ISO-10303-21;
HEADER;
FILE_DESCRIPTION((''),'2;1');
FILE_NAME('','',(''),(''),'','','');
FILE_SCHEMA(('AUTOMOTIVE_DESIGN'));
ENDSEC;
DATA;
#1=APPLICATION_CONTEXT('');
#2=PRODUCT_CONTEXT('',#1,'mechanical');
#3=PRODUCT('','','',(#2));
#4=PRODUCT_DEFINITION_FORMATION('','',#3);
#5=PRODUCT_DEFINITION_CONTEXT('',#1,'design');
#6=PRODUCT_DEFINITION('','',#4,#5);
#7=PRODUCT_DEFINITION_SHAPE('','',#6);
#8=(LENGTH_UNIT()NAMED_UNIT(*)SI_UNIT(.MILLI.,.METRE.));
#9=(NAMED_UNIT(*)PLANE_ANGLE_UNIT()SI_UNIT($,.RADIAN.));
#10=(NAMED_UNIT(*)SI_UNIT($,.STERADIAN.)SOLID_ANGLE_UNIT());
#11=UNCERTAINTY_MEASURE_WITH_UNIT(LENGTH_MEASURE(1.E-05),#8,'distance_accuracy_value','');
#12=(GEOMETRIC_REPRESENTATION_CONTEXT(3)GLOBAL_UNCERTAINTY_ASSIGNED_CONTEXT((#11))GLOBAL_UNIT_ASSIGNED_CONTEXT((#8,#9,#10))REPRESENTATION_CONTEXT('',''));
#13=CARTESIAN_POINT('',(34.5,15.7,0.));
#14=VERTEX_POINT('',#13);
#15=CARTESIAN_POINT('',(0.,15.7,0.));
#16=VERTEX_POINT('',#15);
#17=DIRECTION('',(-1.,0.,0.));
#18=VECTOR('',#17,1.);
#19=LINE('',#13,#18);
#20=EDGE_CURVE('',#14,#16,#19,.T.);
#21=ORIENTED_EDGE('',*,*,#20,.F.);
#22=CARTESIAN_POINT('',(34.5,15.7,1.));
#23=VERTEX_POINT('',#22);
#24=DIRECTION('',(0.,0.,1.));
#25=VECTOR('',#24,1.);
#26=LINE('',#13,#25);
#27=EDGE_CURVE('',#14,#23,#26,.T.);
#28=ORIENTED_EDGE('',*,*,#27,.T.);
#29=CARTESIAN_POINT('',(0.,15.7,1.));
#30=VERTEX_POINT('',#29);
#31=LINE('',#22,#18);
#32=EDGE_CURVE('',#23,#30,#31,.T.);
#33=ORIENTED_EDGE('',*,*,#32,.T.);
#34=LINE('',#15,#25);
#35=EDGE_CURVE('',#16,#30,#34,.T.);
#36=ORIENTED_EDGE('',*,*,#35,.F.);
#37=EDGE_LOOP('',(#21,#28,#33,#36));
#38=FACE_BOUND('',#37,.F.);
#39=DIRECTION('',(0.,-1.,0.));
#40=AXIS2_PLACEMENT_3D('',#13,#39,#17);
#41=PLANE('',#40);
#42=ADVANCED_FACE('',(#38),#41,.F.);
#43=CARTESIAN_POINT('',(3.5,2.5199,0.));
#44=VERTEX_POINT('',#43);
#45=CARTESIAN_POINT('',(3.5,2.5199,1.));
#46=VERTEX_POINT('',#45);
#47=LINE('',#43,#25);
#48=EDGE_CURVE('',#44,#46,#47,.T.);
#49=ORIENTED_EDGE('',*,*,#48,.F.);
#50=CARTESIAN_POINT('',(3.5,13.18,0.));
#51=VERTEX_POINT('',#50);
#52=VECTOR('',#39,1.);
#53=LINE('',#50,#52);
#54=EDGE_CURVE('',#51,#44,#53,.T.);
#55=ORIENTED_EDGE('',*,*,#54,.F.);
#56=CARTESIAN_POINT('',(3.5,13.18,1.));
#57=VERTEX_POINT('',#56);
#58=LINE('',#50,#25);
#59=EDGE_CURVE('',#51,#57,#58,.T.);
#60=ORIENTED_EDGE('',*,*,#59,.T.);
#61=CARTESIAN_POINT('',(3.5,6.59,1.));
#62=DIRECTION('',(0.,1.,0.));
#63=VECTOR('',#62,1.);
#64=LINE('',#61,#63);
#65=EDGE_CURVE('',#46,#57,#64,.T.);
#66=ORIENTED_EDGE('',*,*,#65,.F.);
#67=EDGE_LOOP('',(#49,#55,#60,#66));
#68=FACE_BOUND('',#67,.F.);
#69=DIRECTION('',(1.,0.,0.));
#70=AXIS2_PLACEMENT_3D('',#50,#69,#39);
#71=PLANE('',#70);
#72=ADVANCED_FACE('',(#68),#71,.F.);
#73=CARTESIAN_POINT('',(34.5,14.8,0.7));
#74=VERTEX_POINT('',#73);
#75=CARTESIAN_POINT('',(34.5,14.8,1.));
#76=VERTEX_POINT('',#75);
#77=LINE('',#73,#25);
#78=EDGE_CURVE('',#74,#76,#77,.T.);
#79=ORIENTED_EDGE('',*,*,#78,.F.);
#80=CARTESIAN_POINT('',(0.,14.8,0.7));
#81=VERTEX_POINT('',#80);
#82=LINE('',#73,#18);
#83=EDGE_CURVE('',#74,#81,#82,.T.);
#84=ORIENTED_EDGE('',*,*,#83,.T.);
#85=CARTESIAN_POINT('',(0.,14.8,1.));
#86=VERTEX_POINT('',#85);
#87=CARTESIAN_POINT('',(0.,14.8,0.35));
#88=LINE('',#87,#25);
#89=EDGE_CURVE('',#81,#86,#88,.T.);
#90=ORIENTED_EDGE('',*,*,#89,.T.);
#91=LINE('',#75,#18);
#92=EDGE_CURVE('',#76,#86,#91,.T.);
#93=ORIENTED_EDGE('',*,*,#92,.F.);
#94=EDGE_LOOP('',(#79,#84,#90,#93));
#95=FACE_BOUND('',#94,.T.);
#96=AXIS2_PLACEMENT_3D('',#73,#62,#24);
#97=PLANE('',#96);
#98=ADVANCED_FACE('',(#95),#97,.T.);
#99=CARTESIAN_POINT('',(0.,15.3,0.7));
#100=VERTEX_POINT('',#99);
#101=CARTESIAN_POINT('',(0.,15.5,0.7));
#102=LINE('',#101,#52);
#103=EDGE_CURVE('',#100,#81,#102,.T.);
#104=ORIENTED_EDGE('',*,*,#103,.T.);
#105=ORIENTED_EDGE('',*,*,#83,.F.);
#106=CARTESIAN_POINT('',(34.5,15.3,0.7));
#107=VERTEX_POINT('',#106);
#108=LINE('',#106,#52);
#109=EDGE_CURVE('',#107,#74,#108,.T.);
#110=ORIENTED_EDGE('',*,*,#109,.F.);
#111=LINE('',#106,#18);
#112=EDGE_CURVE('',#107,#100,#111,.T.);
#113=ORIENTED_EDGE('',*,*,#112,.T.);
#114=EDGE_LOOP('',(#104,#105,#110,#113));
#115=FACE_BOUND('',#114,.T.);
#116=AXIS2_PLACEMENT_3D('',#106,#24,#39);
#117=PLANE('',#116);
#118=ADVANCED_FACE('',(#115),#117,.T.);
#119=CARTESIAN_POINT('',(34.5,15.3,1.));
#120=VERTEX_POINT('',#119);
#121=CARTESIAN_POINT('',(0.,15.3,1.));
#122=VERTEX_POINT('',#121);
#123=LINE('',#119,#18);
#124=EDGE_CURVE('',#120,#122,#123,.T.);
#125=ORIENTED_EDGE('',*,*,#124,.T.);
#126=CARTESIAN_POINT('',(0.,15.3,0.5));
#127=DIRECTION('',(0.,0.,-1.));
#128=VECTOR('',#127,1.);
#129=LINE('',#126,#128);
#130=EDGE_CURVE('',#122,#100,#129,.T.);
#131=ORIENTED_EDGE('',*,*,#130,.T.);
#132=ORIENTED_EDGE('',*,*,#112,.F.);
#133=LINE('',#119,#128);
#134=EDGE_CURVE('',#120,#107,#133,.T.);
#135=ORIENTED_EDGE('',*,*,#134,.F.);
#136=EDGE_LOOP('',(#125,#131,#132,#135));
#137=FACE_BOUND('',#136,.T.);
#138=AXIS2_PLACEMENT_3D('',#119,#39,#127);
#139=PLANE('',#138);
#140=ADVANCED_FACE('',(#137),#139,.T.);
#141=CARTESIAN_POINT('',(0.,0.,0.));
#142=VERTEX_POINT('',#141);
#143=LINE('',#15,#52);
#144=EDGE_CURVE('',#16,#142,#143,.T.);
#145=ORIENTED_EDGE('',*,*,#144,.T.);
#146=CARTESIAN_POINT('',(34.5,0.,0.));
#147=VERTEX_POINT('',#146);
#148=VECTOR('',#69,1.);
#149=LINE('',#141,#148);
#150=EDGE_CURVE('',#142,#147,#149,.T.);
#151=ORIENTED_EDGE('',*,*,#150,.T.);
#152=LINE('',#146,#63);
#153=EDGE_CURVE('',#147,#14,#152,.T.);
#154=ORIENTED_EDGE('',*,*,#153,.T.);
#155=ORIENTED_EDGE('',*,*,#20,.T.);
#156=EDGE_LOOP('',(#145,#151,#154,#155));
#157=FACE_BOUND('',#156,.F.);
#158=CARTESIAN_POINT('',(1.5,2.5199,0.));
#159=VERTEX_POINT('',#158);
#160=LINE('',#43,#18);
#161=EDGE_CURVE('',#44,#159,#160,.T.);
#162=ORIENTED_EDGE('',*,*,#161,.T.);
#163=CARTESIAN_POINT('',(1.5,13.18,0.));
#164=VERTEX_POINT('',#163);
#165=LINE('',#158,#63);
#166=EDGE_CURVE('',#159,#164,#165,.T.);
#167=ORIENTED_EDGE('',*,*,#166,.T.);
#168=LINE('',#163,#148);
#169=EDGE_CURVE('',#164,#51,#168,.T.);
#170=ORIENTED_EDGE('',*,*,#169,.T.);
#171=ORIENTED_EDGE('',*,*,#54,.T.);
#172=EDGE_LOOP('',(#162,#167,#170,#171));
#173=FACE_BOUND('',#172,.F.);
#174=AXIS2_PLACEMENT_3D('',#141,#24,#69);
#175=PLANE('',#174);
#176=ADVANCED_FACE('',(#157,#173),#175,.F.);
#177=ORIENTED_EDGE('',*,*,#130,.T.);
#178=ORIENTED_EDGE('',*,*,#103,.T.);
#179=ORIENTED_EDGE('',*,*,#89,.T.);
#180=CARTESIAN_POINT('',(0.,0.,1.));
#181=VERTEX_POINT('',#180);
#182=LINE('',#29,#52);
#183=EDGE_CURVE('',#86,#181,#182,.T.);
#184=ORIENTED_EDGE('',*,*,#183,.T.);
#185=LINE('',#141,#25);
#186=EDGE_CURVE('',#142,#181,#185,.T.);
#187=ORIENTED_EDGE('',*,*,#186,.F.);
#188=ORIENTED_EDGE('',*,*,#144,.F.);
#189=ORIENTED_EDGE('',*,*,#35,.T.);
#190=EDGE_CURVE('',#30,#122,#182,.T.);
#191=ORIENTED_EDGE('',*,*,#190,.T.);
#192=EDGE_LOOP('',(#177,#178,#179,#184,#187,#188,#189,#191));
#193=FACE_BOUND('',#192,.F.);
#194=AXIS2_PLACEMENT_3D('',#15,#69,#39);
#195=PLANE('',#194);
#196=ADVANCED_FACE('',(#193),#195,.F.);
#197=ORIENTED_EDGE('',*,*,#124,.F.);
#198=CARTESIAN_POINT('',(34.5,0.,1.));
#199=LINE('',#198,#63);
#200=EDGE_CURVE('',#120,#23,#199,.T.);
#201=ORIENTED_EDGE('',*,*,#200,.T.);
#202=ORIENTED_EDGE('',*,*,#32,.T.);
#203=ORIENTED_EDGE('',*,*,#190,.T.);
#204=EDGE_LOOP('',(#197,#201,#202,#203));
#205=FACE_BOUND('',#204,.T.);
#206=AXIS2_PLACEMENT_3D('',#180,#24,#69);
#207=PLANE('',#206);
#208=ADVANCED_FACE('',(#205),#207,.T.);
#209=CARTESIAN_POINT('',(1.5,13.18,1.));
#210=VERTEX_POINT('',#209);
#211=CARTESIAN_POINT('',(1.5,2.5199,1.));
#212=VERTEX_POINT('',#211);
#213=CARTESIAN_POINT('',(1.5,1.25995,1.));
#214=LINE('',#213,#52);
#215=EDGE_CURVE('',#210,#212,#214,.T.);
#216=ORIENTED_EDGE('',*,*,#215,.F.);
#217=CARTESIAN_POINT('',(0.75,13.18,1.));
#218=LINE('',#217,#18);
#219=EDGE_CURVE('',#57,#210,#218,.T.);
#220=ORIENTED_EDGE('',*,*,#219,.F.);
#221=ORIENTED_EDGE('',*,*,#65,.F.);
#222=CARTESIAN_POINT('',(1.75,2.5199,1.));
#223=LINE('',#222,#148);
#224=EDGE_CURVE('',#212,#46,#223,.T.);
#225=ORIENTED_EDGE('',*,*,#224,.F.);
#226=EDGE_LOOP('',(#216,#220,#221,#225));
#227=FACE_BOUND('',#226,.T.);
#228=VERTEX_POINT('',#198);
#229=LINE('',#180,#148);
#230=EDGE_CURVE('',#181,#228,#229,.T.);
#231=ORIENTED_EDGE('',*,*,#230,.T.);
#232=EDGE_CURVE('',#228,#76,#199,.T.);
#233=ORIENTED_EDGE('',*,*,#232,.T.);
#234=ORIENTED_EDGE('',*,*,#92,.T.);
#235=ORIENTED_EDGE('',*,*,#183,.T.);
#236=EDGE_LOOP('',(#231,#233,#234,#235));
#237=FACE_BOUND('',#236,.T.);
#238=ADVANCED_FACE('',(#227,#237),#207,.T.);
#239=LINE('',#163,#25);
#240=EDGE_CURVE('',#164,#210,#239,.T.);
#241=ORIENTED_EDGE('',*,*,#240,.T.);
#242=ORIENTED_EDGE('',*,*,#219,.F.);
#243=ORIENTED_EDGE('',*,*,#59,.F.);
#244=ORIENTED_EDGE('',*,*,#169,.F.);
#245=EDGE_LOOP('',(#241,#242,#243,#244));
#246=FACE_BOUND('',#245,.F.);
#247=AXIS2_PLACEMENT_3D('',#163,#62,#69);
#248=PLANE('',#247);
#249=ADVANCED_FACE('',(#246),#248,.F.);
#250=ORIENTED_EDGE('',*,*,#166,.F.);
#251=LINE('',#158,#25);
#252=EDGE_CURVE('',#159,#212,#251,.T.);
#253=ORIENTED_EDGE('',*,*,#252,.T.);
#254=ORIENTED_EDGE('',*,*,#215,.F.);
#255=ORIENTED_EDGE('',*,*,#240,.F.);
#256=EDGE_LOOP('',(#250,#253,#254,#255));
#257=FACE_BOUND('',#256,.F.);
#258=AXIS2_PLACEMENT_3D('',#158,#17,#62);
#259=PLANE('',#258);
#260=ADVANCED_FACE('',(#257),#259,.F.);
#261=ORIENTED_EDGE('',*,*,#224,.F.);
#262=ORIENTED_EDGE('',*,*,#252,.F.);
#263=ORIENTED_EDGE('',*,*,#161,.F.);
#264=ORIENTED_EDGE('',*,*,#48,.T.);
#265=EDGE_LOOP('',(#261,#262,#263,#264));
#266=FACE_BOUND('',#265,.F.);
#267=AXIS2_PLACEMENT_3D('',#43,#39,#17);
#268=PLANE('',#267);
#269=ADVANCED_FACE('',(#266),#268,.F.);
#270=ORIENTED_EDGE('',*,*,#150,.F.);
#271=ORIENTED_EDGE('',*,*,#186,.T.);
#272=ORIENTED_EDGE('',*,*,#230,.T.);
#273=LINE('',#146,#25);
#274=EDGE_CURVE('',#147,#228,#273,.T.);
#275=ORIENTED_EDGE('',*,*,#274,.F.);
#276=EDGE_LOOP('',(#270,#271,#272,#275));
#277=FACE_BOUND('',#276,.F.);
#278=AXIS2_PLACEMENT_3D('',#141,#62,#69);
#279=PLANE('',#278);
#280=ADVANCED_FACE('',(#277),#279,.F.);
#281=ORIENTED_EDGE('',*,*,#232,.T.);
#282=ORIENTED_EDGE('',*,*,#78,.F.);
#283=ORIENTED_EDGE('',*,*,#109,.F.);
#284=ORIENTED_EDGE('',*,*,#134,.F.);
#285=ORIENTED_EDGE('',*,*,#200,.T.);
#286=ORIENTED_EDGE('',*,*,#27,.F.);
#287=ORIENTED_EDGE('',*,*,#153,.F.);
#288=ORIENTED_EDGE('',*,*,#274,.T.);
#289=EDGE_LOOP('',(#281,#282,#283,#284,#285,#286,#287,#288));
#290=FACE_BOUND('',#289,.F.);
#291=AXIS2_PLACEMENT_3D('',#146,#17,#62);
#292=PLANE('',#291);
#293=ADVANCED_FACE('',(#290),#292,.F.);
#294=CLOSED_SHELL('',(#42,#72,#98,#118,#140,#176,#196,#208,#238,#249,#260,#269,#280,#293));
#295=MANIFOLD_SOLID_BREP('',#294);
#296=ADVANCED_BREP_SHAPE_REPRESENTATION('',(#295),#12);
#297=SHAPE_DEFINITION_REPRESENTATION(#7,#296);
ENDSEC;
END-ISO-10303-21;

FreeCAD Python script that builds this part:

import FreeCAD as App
import Part
import Sketcher
Q = App.Units.Quantity

doc = App.newDocument("Part")
params = doc.addObject("Spreadsheet::Sheet", "Params")
for row, (alias, value) in enumerate([
    ("sketch1_width", "34.5 mm"),
    ("sketch1_height", "15.7 mm"),
    ("pad1_length", "1 mm"),
    ("sketch2_width", "0.5 mm"),
    ("sketch2_height", "0.3 mm"),
    ("pocket1_length", "40 mm"),
    ("sketch3_width", "2 mm"),
    ("sketch3_height", "10.66 mm"),
    ("pocket2_length", "2 mm"),
], start=1):
    params.set(f"A{row}", alias)
    params.set(f"B{row}", "=" + value)
    params.setAlias(f"B{row}", alias)

body = doc.addObject("PartDesign::Body", "Body")

# Sketch on XY plane
sketch1 = body.newObject("Sketcher::SketchObject", "Sketch")
sketch1.AttachmentSupport = (doc.getObject("XY_Plane"), [""])
sketch1.MapMode = "FlatFace"
sketch1.addGeometry([
    Part.LineSegment(App.Vector(0, 15.7, 0), App.Vector(0, 0, 0)),
    Part.LineSegment(App.Vector(0, 0, 0), App.Vector(34.5, 0, 0)),
    Part.LineSegment(App.Vector(34.5, 0, 0), App.Vector(34.5, 15.7, 0)),
    Part.LineSegment(App.Vector(34.5, 15.7, 0), App.Vector(0, 15.7, 0)),
], False)
sketch1.addConstraint([
    Sketcher.Constraint("Coincident", 0, 2, 1, 1),
    Sketcher.Constraint("Coincident", 1, 2, 2, 1),
    Sketcher.Constraint("Coincident", 2, 2, 3, 1),
    Sketcher.Constraint("Coincident", 3, 2, 0, 1),
    Sketcher.Constraint("Vertical", 0),
    Sketcher.Constraint("Horizontal", 1),
    Sketcher.Constraint("Vertical", 2),
    Sketcher.Constraint("Horizontal", 3),
    Sketcher.Constraint("Coincident", 0, 2, -1, 1),
    Sketcher.Constraint("DistanceX", 1, 1, 1, 2, Q("34.5 mm")),
    Sketcher.Constraint("DistanceY", 0, 2, 0, 1, Q("15.7 mm")),
])
sketch1.setExpression("Constraints[9]", "Params.sketch1_width")
sketch1.setExpression("Constraints[10]", "Params.sketch1_height")
pad1 = body.newObject("PartDesign::Pad", "Pad")
pad1.Profile = sketch1
pad1.setExpression("Length", "Params.pad1_length")

# Sketch on YZ plane
sketch2 = body.newObject("Sketcher::SketchObject", "Sketch001")
sketch2.AttachmentSupport = (doc.getObject("YZ_Plane"), [""])
sketch2.MapMode = "FlatFace"
sketch2.AttachmentOffset = App.Placement(App.Vector(0, 0, 34.5), App.Rotation())
sketch2.addGeometry([
    Part.LineSegment(App.Vector(15.3, 1, 0), App.Vector(14.8, 1, 0)),
    Part.LineSegment(App.Vector(14.8, 1, 0), App.Vector(14.8, 0.7, 0)),
    Part.LineSegment(App.Vector(14.8, 0.7, 0), App.Vector(15.3, 0.7, 0)),
    Part.LineSegment(App.Vector(15.3, 0.7, 0), App.Vector(15.3, 1, 0)),
], False)
sketch2.addConstraint([
    Sketcher.Constraint("Coincident", 0, 2, 1, 1),
    Sketcher.Constraint("Coincident", 1, 2, 2, 1),
    Sketcher.Constraint("Coincident", 2, 2, 3, 1),
    Sketcher.Constraint("Coincident", 3, 2, 0, 1),
    Sketcher.Constraint("Horizontal", 0),
    Sketcher.Constraint("Vertical", 1),
    Sketcher.Constraint("Horizontal", 2),
    Sketcher.Constraint("Vertical", 3),
    Sketcher.Constraint("DistanceX", 0, 2, 0, 1, Q("0.5 mm")),
    Sketcher.Constraint("DistanceY", 1, 2, 1, 1, Q("0.3 mm")),
    Sketcher.Constraint("DistanceY", -1, 1, 0, 2, Q("1 mm")),
    Sketcher.Constraint("DistanceX", -1, 1, 0, 2, Q("14.8 mm")),
])
sketch2.setExpression("Constraints[8]", "Params.sketch2_width")
sketch2.setExpression("Constraints[9]", "Params.sketch2_height")
pocket1 = body.newObject("PartDesign::Pocket", "Pocket")
pocket1.Profile = sketch2
pocket1.setExpression("Length", "Params.pocket1_length")

# Sketch on XY plane
sketch3 = body.newObject("Sketcher::SketchObject", "Sketch002")
sketch3.AttachmentSupport = (doc.getObject("XY_Plane"), [""])
sketch3.MapMode = "FlatFace"
sketch3.addGeometry([
    Part.LineSegment(App.Vector(1.5, 2.5199, 0), App.Vector(1.5, 13.18, 0)),
    Part.LineSegment(App.Vector(1.5, 13.18, 0), App.Vector(3.5, 13.18, 0)),
    Part.LineSegment(App.Vector(3.5, 13.18, 0), App.Vector(3.5, 2.5199, 0)),
    Part.LineSegment(App.Vector(3.5, 2.5199, 0), App.Vector(1.5, 2.5199, 0)),
], False)
sketch3.addConstraint([
    Sketcher.Constraint("Coincident", 0, 2, 1, 1),
    Sketcher.Constraint("Coincident", 1, 2, 2, 1),
    Sketcher.Constraint("Coincident", 2, 2, 3, 1),
    Sketcher.Constraint("Coincident", 3, 2, 0, 1),
    Sketcher.Constraint("Vertical", 0),
    Sketcher.Constraint("Horizontal", 1),
    Sketcher.Constraint("Vertical", 2),
    Sketcher.Constraint("Horizontal", 3),
    Sketcher.Constraint("DistanceX", 1, 1, 1, 2, Q("2 mm")),
    Sketcher.Constraint("DistanceY", 0, 1, 0, 2, Q("10.66 mm")),
    Sketcher.Constraint("DistanceX", -1, 1, 0, 2, Q("1.5 mm")),
    Sketcher.Constraint("DistanceY", -1, 1, 2, 2, Q("2.52 mm")),
])
sketch3.setExpression("Constraints[8]", "Params.sketch3_width")
sketch3.setExpression("Constraints[9]", "Params.sketch3_height")
pocket2 = body.newObject("PartDesign::Pocket", "Pocket001")
pocket2.Profile = sketch3
pocket2.setExpression("Length", "Params.pocket2_length")
pocket2.Reversed = True

doc.recompute()
